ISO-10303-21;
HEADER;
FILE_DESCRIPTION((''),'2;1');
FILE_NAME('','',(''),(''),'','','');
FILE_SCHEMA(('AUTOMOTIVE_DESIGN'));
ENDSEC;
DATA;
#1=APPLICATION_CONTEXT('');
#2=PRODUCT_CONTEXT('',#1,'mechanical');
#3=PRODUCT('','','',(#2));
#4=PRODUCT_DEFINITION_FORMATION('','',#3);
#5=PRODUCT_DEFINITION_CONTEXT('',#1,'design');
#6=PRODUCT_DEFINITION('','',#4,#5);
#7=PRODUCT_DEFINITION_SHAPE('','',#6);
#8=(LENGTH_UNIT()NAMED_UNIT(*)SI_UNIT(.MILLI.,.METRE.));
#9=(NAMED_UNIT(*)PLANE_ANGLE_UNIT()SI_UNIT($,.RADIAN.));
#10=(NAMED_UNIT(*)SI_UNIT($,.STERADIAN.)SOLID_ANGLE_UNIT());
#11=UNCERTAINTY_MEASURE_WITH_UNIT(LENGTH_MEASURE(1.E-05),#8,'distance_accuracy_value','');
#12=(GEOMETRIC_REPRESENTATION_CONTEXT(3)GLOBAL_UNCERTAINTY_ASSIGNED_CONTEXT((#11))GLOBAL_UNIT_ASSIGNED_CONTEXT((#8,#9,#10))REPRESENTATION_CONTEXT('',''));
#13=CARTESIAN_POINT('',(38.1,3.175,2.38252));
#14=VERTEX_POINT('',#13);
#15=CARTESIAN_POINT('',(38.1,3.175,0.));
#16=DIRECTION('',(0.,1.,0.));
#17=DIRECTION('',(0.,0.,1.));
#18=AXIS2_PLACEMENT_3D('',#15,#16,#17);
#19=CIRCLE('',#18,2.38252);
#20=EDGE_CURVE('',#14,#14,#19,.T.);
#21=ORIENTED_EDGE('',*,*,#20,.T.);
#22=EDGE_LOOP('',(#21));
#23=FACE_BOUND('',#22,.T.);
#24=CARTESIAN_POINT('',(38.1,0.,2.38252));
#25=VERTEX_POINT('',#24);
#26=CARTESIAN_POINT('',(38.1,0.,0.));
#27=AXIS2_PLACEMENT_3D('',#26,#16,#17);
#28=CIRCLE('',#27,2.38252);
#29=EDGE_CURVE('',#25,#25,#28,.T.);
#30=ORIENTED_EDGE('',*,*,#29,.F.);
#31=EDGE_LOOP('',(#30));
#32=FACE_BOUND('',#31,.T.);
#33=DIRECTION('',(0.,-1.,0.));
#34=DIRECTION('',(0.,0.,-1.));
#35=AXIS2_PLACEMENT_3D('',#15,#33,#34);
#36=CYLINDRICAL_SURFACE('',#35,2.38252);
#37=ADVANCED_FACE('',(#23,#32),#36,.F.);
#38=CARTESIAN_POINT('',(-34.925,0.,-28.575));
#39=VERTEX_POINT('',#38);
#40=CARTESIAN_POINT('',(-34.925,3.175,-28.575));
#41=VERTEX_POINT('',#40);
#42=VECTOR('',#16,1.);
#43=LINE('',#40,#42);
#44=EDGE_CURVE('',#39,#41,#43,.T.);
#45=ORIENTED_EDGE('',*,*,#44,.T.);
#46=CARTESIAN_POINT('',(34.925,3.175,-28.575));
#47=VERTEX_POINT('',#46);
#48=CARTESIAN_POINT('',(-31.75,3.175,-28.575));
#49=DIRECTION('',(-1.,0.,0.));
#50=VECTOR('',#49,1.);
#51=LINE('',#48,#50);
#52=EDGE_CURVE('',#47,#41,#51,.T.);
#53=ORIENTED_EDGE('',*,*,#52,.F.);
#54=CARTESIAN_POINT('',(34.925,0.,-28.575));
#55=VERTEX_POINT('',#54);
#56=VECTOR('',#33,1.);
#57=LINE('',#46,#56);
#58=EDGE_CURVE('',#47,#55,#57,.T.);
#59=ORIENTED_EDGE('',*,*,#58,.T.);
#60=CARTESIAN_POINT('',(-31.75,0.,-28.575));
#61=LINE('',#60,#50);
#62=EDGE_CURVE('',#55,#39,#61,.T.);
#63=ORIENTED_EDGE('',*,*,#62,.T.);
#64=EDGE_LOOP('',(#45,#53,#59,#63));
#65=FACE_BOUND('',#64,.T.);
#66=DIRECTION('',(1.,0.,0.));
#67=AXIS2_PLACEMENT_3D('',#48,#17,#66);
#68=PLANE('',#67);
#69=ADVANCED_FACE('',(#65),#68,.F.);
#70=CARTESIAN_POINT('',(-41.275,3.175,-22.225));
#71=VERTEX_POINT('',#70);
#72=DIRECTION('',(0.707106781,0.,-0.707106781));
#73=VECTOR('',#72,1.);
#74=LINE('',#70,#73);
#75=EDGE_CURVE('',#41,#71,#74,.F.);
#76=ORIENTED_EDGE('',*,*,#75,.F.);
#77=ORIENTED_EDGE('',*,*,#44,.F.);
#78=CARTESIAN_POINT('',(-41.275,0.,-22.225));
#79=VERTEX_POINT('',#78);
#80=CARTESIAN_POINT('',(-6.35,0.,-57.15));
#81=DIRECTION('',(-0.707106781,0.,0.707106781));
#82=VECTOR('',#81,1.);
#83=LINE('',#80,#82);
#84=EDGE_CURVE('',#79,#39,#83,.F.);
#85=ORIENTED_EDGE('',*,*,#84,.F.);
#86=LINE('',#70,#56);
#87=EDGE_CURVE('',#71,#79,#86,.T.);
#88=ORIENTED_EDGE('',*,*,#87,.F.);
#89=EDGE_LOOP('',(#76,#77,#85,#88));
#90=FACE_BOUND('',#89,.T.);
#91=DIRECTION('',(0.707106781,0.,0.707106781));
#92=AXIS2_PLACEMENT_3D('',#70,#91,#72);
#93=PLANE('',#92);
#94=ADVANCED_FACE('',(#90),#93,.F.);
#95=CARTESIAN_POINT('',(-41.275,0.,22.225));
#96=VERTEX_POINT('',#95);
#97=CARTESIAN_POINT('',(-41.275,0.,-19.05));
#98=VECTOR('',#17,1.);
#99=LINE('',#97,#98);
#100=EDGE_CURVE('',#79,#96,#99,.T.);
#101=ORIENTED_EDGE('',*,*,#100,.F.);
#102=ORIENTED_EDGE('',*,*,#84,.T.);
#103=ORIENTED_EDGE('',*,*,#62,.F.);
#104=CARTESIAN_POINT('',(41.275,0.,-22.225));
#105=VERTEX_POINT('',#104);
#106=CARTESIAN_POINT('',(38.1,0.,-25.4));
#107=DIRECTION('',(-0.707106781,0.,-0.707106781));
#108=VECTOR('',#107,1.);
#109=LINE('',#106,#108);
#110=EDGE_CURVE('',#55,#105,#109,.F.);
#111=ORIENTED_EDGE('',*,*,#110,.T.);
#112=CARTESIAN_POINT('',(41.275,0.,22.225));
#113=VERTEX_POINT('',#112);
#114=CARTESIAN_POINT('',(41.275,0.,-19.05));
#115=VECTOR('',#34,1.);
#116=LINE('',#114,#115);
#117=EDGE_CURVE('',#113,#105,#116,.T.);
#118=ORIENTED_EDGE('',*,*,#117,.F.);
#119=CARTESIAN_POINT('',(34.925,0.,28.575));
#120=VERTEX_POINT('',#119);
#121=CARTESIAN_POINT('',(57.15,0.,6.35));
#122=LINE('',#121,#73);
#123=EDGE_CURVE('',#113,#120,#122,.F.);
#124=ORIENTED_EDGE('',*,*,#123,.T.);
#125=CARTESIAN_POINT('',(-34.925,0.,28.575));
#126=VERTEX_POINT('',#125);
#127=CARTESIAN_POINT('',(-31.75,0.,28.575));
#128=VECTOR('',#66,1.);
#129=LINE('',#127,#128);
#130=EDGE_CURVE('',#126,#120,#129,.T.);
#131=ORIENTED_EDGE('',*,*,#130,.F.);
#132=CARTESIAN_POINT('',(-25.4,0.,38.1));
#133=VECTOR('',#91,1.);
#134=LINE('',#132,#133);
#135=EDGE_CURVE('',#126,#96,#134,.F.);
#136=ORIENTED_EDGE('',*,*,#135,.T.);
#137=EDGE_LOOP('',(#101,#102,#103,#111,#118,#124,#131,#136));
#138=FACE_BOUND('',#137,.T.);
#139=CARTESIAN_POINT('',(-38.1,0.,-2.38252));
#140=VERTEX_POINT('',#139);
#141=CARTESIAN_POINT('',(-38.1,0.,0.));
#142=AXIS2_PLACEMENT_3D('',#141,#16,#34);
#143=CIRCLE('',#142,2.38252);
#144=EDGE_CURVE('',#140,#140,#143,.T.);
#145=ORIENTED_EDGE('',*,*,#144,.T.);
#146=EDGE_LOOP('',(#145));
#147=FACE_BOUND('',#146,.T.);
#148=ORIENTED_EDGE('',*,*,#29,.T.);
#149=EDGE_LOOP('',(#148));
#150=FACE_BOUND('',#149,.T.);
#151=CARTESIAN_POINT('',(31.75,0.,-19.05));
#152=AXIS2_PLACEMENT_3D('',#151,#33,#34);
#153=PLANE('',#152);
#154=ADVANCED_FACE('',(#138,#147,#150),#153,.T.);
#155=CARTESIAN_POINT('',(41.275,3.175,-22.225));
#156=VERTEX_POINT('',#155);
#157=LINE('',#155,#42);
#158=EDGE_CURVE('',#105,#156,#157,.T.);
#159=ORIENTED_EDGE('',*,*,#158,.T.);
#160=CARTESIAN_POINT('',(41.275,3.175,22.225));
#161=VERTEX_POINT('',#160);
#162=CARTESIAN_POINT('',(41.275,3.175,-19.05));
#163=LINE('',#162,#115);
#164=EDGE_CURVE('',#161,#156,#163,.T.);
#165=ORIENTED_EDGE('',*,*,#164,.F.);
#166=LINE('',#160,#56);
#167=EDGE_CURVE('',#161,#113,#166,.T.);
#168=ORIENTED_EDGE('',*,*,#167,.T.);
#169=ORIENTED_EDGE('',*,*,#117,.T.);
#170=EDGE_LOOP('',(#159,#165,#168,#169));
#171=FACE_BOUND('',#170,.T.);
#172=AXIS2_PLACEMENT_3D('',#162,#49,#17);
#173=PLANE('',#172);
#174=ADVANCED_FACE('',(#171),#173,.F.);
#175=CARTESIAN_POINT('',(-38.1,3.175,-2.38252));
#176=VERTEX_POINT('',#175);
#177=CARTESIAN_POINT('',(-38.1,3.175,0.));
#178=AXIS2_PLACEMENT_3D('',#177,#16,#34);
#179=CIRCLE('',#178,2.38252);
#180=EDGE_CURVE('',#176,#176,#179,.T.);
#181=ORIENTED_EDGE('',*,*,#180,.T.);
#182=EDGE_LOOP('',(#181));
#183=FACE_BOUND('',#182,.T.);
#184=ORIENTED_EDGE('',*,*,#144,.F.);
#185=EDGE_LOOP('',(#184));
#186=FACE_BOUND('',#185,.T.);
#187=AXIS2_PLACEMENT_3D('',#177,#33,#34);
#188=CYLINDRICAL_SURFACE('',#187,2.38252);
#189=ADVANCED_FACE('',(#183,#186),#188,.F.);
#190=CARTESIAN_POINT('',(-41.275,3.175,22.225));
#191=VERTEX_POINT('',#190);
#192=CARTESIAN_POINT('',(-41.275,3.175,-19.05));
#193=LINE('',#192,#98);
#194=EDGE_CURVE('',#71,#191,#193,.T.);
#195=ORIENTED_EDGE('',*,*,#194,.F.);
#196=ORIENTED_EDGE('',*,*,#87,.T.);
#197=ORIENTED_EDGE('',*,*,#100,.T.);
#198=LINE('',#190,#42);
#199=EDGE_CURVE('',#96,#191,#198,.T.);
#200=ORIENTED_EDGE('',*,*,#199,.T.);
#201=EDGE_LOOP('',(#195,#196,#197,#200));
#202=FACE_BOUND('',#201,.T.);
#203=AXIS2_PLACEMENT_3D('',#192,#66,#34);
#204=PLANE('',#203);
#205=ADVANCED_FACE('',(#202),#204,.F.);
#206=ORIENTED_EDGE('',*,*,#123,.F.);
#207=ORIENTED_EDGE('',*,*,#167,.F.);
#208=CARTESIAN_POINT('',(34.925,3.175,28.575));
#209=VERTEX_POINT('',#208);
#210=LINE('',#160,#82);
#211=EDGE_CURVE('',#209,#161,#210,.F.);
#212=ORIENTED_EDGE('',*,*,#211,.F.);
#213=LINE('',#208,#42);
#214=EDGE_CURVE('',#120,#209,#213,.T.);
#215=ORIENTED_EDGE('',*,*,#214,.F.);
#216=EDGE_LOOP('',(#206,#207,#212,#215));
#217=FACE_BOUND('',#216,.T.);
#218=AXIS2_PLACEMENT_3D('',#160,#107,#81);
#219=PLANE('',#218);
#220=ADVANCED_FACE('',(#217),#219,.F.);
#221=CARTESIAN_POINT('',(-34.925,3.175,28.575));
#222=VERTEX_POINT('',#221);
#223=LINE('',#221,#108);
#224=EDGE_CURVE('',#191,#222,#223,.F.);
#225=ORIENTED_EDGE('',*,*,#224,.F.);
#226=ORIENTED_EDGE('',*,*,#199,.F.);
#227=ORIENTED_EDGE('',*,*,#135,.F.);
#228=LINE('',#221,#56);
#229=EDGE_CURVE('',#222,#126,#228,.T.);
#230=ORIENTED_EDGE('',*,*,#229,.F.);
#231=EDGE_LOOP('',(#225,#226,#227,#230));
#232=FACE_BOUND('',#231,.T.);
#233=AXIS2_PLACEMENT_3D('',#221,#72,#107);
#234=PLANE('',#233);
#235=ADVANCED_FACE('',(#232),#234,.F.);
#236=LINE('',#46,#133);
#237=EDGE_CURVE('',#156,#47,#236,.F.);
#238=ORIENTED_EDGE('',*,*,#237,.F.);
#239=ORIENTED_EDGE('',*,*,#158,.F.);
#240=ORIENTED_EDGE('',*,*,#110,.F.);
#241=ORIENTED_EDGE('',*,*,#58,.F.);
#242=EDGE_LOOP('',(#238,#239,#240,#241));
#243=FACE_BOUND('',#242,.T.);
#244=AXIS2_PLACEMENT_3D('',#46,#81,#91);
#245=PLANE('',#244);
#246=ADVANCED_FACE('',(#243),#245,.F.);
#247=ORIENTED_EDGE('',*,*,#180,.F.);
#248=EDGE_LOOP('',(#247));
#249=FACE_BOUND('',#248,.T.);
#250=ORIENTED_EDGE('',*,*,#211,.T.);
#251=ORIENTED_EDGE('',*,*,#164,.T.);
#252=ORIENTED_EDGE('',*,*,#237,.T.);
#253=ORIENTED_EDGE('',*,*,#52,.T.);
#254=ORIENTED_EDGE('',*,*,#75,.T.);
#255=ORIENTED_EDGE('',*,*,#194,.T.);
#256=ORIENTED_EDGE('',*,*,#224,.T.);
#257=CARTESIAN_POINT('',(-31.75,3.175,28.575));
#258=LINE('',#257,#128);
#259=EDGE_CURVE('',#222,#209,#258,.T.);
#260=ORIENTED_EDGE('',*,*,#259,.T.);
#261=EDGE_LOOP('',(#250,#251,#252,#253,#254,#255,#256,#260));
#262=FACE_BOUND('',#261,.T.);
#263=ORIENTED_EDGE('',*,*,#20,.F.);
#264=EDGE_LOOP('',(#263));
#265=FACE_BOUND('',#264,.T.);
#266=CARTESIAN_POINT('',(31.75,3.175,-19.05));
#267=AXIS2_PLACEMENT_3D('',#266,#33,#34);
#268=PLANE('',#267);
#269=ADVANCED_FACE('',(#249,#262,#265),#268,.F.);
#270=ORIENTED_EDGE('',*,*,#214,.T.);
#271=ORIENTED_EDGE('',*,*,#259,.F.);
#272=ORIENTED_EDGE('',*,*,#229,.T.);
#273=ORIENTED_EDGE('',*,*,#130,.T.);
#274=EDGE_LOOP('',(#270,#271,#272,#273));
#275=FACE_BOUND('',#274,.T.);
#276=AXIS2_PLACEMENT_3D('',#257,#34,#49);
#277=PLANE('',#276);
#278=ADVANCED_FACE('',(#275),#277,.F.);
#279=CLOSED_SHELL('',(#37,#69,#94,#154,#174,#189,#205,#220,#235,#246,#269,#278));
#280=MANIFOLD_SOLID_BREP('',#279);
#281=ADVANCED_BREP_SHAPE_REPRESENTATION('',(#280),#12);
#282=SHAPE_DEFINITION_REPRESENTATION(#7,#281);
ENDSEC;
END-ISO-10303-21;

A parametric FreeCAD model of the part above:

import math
import FreeCAD as App
import Part
import Sketcher
from FreeCAD import Vector
Q = App.Units.Quantity


def edges_at(feature, points):
    """Names of the edges that pass closest to the given points."""
    edges = feature.Shape.Edges
    near = lambda p: min(range(len(edges)), key=lambda i: edges[i].distToShape(Part.Vertex(*p))[0])
    return sorted({f"Edge{near(p) + 1}" for p in points})


def add_polygon(sketch, points):
    """Adds a closed chain of lines whose ends are joined by coincident constraints."""
    first, n = sketch.GeometryCount, len(points)
    for a, b in zip(points, points[1:] + points[:1]):
        sketch.addGeometry(Part.LineSegment(App.Vector(*a, 0), App.Vector(*b, 0)), False)
    for i in range(n):
        sketch.addConstraint(Sketcher.Constraint("Coincident", first + i, 2, first + (i + 1) % n, 1))

doc = App.newDocument("Part")
body = doc.addObject("PartDesign::Body", "Body")

# Sketch on XZ plane
sketch1 = body.newObject("Sketcher::SketchObject", "Sketch")
sketch1.AttachmentSupport = (doc.getObject("XZ_Plane"), [""])
sketch1.MapMode = "FlatFace"
sketch1.addGeometry([
    Part.LineSegment(Vector(31.8, -28.6, 0), Vector(-31.8, -28.6, 0)),  # 0
    Part.ArcOfCircle(Part.Circle(Vector(-31.8, -19.1, 0), Vector(0, 0, 1), 9.5), math.radians(180), math.radians(270)),  # 1
    Part.LineSegment(Vector(-41.3, -19.1, 0), Vector(-41.3, 19.1, 0)),  # 2
    Part.ArcOfCircle(Part.Circle(Vector(-31.8, 19.1, 0), Vector(0, 0, 1), 9.5), math.radians(90), math.radians(180)),  # 3
    Part.LineSegment(Vector(-31.8, 28.6, 0), Vector(31.8, 28.6, 0)),  # 4
    Part.ArcOfCircle(Part.Circle(Vector(31.8, 19.1, 0), Vector(0, 0, 1), 9.5), math.radians(0), math.radians(90)),  # 5
    Part.LineSegment(Vector(41.3, 19.1, 0), Vector(41.3, -19.1, 0)),  # 6
    Part.ArcOfCircle(Part.Circle(Vector(31.8, -19.1, 0), Vector(0, 0, 1), 9.5), math.radians(-90), math.radians(0)),  # 7
    Part.Circle(Vector(38.1, 0, 0), Vector(0, 0, 1), 2.4),  # 8
    Part.Circle(Vector(-38.1, 0, 0), Vector(0, 0, 1), 2.4),  # 9
], False)
sketch1.addConstraint([
    Sketcher.Constraint("Tangent", 0, 2, 1, 2),
    Sketcher.Constraint("Tangent", 1, 1, 2, 1),
    Sketcher.Constraint("Tangent", 2, 2, 3, 2),
    Sketcher.Constraint("Tangent", 3, 1, 4, 1),
    Sketcher.Constraint("Tangent", 4, 2, 5, 2),
    Sketcher.Constraint("Tangent", 5, 1, 6, 1),
    Sketcher.Constraint("Tangent", 6, 2, 7, 2),
    Sketcher.Constraint("Tangent", 7, 1, 0, 1),
    Sketcher.Constraint("Horizontal", 0),
    Sketcher.Constraint("Vertical", 2),
    Sketcher.Constraint("Horizontal", 4),
    Sketcher.Constraint("Vertical", 6),
    Sketcher.Constraint("Equal", 1, 3),
    Sketcher.Constraint("Equal", 3, 5),
    Sketcher.Constraint("Equal", 5, 7),
    Sketcher.Constraint("Equal", 8, 9),
    Sketcher.Constraint("Symmetric", 1, 3, 5, 3, -1, 1),
    Sketcher.Constraint("Symmetric", 8, 3, 9, 3, -1, 1),
    Sketcher.Constraint("PointOnObject", 8, 3, -1),
    Sketcher.Constraint("DistanceX", 0, 2, 0, 1, Q("2.5 in")),
    Sketcher.Constraint("DistanceY", 2, 1, 2, 2, Q("1.5 in")),
    Sketcher.Constraint("Radius", 1, Q("0.375 in")),
    Sketcher.Constraint("DistanceX", 9, 3, 8, 3, Q("3 in")),
    Sketcher.Constraint("Diameter", 8, Q("0.1876 in")),
])
pad1 = body.newObject("PartDesign::Pad", "Pad")
pad1.Profile = sketch1
pad1.Length = Q("0.125 in")
pad1.Reversed = True

# Sketch on XZ plane
sketch2 = body.newObject("Sketcher::SketchObject", "Sketch001")
sketch2.AttachmentSupport = (doc.getObject("XZ_Plane"), [""])
sketch2.MapMode = "FlatFace"
add_polygon(sketch2, [(32, -29), (41, -19), (41, -29)])  # lines 0-2
add_polygon(sketch2, [(-41, -19), (-32, -29), (-41, -29)])  # lines 3-5
add_polygon(sketch2, [(-32, 29), (-41, 19), (-41, 29)])  # lines 6-8
add_polygon(sketch2, [(41, 19), (32, 29), (41, 29)])  # lines 9-11
sketch2.addConstraint([
    Sketcher.Constraint("Vertical", 1),
    Sketcher.Constraint("Horizontal", 2),
    Sketcher.Constraint("Horizontal", 4),
    Sketcher.Constraint("Vertical", 5),
    Sketcher.Constraint("Vertical", 7),
    Sketcher.Constraint("Horizontal", 8),
    Sketcher.Constraint("Horizontal", 10),
    Sketcher.Constraint("Vertical", 11),
    Sketcher.Constraint("Symmetric", 0, 2, 6, 2, -1, 1),
    Sketcher.Constraint("Symmetric", 2, 2, 8, 2, -1, 1),
    Sketcher.Constraint("Symmetric", 3, 2, 9, 2, -1, 1),
    Sketcher.Constraint("Symmetric", 5, 2, 11, 2, -1, 1),
    Sketcher.Constraint("Symmetric", 2, 2, 3, 2, -2),
    Sketcher.Constraint("Symmetric", 0, 2, 5, 2, -2),
    Sketcher.Constraint("Perpendicular", 0, 3),
    Sketcher.Constraint("DistanceX", 3, 2, 2, 2, Q("2.5 in")),
    Sketcher.Constraint("DistanceY", 5, 2, 6, 2, Q("1.5 in")),
    Sketcher.Constraint("DistanceX", 2, 2, 2, 1, Q("0.375 in")),
])
pad2 = body.newObject("PartDesign::Pad", "Pad001")
pad2.Profile = sketch2
pad2.Length = Q("0.125 in")
pad2.Reversed = True
doc.recompute()

chamfer = body.newObject("PartDesign::Chamfer", "Chamfer")
chamfer.Base = (pad2, edges_at(pad2, [
    (41.275, 1.587, -28.575),
    (-41.275, 1.587, -28.575),
    (-41.275, 1.587, 28.575),
    (41.275, 1.587, 28.575),
]))
chamfer.Size = Q("0.25 in")

doc.recompute()
